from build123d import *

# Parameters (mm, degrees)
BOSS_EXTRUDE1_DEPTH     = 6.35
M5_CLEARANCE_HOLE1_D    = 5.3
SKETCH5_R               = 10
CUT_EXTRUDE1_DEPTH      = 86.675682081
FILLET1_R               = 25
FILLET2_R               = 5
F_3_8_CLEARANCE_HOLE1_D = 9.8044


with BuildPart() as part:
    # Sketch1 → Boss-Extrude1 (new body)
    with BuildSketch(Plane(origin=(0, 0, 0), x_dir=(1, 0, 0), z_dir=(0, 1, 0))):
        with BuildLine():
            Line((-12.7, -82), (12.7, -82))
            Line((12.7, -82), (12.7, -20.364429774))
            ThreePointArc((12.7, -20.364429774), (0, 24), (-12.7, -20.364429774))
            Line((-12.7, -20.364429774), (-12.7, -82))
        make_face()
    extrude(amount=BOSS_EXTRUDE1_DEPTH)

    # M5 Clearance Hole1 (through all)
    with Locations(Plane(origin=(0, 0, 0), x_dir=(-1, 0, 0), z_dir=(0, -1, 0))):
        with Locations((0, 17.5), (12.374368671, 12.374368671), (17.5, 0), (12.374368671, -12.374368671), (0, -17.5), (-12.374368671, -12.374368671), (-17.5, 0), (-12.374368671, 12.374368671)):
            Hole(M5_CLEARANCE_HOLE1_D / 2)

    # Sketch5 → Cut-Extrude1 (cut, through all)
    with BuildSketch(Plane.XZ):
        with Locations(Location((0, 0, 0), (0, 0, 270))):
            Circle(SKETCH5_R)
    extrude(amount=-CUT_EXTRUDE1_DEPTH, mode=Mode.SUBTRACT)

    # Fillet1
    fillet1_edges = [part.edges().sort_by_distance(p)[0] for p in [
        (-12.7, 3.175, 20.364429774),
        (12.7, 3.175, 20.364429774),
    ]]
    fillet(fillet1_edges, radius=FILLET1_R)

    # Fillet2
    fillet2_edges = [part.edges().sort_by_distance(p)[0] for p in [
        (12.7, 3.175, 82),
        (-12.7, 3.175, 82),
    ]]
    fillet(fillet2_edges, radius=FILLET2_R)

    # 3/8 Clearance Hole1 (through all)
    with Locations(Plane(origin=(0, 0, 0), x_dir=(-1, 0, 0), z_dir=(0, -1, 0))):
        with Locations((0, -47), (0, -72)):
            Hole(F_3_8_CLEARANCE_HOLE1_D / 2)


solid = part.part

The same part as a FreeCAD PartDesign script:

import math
import FreeCAD as App
import Part
import Sketcher
from FreeCAD import Vector


def edges_at(feature, points):
    """Names of the edges that pass closest to the given points."""
    edges = feature.Shape.Edges
    near = lambda p: min(range(len(edges)), key=lambda i: edges[i].distToShape(Part.Vertex(*p))[0])
    return sorted({f"Edge{near(p) + 1}" for p in points})

doc = App.newDocument("Part")
body = doc.addObject("PartDesign::Body", "Body")

# Sketch on XZ plane
sketch1 = doc.addObject("Sketcher::SketchObject", "Sketch")
body.addObject(sketch1)
sketch1.AttachmentSupport = (doc.XZ_Plane, [""])
sketch1.MapMode = "FlatFace"
sketch1.addGeometry(Part.LineSegment(Vector(-13, 82, 0), Vector(13, 82, 0)), False)
sketch1.addGeometry(Part.LineSegment(Vector(13, 82, 0), Vector(13, 20, 0)), False)
sketch1.addGeometry(Part.ArcOfCircle(Part.Circle(Vector(0, 0, 0), Vector(0, 0, 1), 24), math.radians(122), math.radians(418)), False)
sketch1.addGeometry(Part.LineSegment(Vector(-13, 20, 0), Vector(-13, 82, 0)), False)
sketch1.addConstraint(Sketcher.Constraint("Coincident", 0, 2, 1, 1))
sketch1.addConstraint(Sketcher.Constraint("Coincident", 1, 2, 2, 2))
sketch1.addConstraint(Sketcher.Constraint("Coincident", 2, 1, 3, 1))
sketch1.addConstraint(Sketcher.Constraint("Coincident", 3, 2, 0, 1))
sketch1.addConstraint(Sketcher.Constraint("Horizontal", 0))
sketch1.addConstraint(Sketcher.Constraint("Vertical", 1))
sketch1.addConstraint(Sketcher.Constraint("Vertical", 3))
sketch1.addConstraint(Sketcher.Constraint("Coincident", 2, 3, -1, 1))
sketch1.addConstraint(Sketcher.Constraint("Horizontal", 1, 2, 2, 1))
sketch1.addConstraint(Sketcher.Constraint("Radius", 2, 24.0))
sketch1.addConstraint(Sketcher.Constraint("DistanceX", 0, 1, 0, 2, 25.4))
sketch1.addConstraint(Sketcher.Constraint("DistanceY", -1, 1, 0, 2, 82.0))
pad1 = doc.addObject("PartDesign::Pad", "Pad")
body.addObject(pad1)
pad1.Profile = sketch1
pad1.Length = 6.35
pad1.Reversed = True

# Sketch on XZ plane
sketch2 = doc.addObject("Sketcher::SketchObject", "Sketch001")
body.addObject(sketch2)
sketch2.AttachmentSupport = (doc.XZ_Plane, [""])
sketch2.MapMode = "FlatFace"
sketch2.addGeometry(Part.Circle(Vector(0, -17.5, 0), Vector(0, 0, 1), 2.6), False)
sketch2.addGeometry(Part.Circle(Vector(-12.4, -12.4, 0), Vector(0, 0, 1), 2.6), False)
sketch2.addGeometry(Part.Circle(Vector(-17.5, 0, 0), Vector(0, 0, 1), 2.6), False)
sketch2.addGeometry(Part.Circle(Vector(-12.4, 12.4, 0), Vector(0, 0, 1), 2.6), False)
sketch2.addGeometry(Part.Circle(Vector(0, 17.5, 0), Vector(0, 0, 1), 2.6), False)
sketch2.addGeometry(Part.Circle(Vector(12.4, 12.4, 0), Vector(0, 0, 1), 2.6), False)
sketch2.addGeometry(Part.Circle(Vector(17.5, 0, 0), Vector(0, 0, 1), 2.6), False)
sketch2.addGeometry(Part.Circle(Vector(12.4, -12.4, 0), Vector(0, 0, 1), 2.6), False)
sketch2.addConstraint(Sketcher.Constraint("Equal", 0, 1))
sketch2.addConstraint(Sketcher.Constraint("Equal", 1, 2))
sketch2.addConstraint(Sketcher.Constraint("Equal", 2, 3))
sketch2.addConstraint(Sketcher.Constraint("Equal", 3, 4))
sketch2.addConstraint(Sketcher.Constraint("Equal", 4, 5))
sketch2.addConstraint(Sketcher.Constraint("Equal", 5, 6))
sketch2.addConstraint(Sketcher.Constraint("Equal", 6, 7))
sketch2.addConstraint(Sketcher.Constraint("Symmetric", 0, 3, 4, 3, -1, 1))
sketch2.addConstraint(Sketcher.Constraint("Symmetric", 1, 3, 5, 3, -1, 1))
sketch2.addConstraint(Sketcher.Constraint("Symmetric", 2, 3, 6, 3, -1, 1))
sketch2.addConstraint(Sketcher.Constraint("Symmetric", 3, 3, 7, 3, -1, 1))
sketch2.addConstraint(Sketcher.Constraint("Symmetric", 3, 3, 5, 3, -2))
sketch2.addConstraint(Sketcher.Constraint("PointOnObject", 0, 3, -2))
sketch2.addConstraint(Sketcher.Constraint("PointOnObject", 2, 3, -1))
sketch2.addConstraint(Sketcher.Constraint("Diameter", 0, 5.3))
sketch2.addConstraint(Sketcher.Constraint("DistanceY", 0, 3, 4, 3, 35.0))
sketch2.addConstraint(Sketcher.Constraint("DistanceX", 2, 3, -1, 1, 17.5))
sketch2.addConstraint(Sketcher.Constraint("DistanceX", 1, 3, -1, 1, 12.374369))
sketch2.addConstraint(Sketcher.Constraint("DistanceY", 1, 3, -1, 1, 12.374369))
doc.recompute()
hole = doc.addObject("PartDesign::Hole", "Hole")
body.addObject(hole)
hole.Profile = sketch2
hole.ThreadType = "None"
hole.Diameter = 5.3
hole.DepthType = "ThroughAll"

# Sketch on XZ plane
sketch3 = doc.addObject("Sketcher::SketchObject", "Sketch002")
body.addObject(sketch3)
sketch3.AttachmentSupport = (doc.XZ_Plane, [""])
sketch3.MapMode = "FlatFace"
sketch3.addGeometry(Part.Circle(Vector(0, 0, 0), Vector(0, 0, 1), 10), False)
sketch3.addConstraint(Sketcher.Constraint("Coincident", 0, 3, -1, 1))
sketch3.addConstraint(Sketcher.Constraint("Diameter", 0, 20.0))
pocket1 = doc.addObject("PartDesign::Pocket", "Pocket")
body.addObject(pocket1)
pocket1.Profile = sketch3
pocket1.Type = "ThroughAll"
doc.recompute()

fillet = doc.addObject("PartDesign::Fillet", "Fillet")
body.addObject(fillet)
fillet.Base = (pocket1, edges_at(pocket1, [(-12.7, 3.175, 20.364), (12.7, 3.175, 20.364)]))
fillet.Radius = 25
doc.recompute()

fillet2 = doc.addObject("PartDesign::Fillet", "Fillet001")
body.addObject(fillet2)
fillet2.Base = (fillet, edges_at(fillet, [(12.7, 3.175, 82), (-12.7, 3.175, 82)]))
fillet2.Radius = 5

# Sketch on XZ plane
sketch4 = doc.addObject("Sketcher::SketchObject", "Sketch003")
body.addObject(sketch4)
sketch4.AttachmentSupport = (doc.XZ_Plane, [""])
sketch4.MapMode = "FlatFace"
sketch4.addGeometry(Part.Circle(Vector(0, 47, 0), Vector(0, 0, 1), 4.9), False)
sketch4.addGeometry(Part.Circle(Vector(0, 72, 0), Vector(0, 0, 1), 4.9), False)
sketch4.addConstraint(Sketcher.Constraint("Equal", 0, 1))
sketch4.addConstraint(Sketcher.Constraint("PointOnObject", 0, 3, -2))
sketch4.addConstraint(Sketcher.Constraint("PointOnObject", 1, 3, -2))
sketch4.addConstraint(Sketcher.Constraint("DistanceY", -1, 1, 0, 3, 47.0))
sketch4.addConstraint(Sketcher.Constraint("DistanceY", -1, 1, 1, 3, 72.0))
sketch4.addConstraint(Sketcher.Constraint("Diameter", 0, 9.8044))
doc.recompute()
hole2 = doc.addObject("PartDesign::Hole", "Hole001")
body.addObject(hole2)
hole2.Profile = sketch4
hole2.ThreadType = "None"
hole2.Diameter = 9.8044
hole2.DepthType = "ThroughAll"

doc.recompute()
